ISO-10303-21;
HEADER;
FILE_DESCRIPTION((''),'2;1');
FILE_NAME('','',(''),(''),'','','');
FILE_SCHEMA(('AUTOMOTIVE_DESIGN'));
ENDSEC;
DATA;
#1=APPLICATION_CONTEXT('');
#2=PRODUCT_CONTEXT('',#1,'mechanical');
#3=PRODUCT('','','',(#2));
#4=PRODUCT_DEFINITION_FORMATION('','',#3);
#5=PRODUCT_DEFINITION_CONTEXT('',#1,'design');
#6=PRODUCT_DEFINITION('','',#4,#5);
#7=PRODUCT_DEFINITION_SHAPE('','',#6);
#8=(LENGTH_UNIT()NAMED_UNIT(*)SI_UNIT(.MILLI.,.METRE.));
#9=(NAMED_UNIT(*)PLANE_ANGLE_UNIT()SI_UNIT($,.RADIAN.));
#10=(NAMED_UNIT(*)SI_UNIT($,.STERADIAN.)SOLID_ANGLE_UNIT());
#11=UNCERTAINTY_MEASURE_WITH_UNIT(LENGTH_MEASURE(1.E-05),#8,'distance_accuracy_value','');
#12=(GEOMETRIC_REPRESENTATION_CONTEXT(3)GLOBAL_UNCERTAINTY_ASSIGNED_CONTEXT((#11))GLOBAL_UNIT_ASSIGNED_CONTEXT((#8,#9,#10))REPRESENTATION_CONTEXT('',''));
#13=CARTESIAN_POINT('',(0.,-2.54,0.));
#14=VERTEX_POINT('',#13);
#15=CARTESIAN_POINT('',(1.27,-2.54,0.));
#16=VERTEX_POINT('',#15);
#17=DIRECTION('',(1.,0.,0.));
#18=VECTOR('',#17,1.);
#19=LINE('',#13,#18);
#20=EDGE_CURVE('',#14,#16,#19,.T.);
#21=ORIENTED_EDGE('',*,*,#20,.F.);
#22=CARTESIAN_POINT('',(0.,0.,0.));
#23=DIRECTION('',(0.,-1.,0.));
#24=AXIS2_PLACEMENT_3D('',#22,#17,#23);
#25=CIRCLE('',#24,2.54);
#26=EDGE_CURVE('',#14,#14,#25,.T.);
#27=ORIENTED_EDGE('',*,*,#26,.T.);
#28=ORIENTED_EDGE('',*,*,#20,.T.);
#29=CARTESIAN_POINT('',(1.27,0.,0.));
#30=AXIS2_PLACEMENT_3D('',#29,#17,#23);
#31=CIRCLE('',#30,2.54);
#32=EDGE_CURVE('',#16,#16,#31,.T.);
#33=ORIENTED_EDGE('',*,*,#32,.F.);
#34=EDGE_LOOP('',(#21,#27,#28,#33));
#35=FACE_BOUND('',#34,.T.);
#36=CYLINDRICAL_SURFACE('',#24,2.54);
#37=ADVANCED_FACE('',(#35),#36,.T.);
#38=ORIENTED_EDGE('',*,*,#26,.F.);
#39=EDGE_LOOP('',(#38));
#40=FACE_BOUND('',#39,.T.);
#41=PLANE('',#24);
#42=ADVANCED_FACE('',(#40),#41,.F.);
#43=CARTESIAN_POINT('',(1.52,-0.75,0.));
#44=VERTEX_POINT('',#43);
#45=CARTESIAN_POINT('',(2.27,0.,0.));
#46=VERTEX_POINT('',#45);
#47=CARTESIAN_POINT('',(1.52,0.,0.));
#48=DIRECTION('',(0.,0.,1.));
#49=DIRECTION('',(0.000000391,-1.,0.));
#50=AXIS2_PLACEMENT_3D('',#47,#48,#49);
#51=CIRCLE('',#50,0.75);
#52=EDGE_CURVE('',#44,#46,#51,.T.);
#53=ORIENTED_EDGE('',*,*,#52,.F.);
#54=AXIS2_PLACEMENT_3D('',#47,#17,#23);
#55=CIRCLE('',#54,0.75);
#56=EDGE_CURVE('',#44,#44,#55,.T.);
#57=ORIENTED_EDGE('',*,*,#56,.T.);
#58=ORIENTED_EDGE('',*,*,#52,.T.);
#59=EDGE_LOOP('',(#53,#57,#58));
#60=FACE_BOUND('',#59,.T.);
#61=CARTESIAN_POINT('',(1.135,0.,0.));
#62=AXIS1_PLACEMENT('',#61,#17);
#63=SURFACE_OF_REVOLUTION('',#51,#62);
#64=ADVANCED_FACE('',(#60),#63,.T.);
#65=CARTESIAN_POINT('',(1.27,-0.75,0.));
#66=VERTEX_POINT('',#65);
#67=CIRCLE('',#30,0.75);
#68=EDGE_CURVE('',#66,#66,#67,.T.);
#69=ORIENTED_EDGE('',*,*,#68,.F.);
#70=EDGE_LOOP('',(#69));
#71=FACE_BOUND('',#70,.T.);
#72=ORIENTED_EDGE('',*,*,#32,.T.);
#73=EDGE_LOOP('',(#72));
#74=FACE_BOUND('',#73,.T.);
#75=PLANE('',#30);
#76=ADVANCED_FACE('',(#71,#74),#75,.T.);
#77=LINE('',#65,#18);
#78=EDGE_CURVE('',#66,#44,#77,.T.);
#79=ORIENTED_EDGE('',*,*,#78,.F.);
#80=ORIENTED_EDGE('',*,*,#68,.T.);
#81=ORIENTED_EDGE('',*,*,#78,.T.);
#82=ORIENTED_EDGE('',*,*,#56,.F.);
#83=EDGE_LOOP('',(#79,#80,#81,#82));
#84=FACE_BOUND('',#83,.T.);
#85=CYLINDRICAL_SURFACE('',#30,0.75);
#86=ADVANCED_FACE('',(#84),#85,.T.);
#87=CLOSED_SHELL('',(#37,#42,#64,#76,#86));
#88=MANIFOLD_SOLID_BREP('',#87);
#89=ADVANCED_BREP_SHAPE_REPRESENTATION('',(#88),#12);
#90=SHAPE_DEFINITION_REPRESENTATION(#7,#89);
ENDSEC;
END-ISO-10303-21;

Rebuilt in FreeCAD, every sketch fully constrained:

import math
import FreeCAD as App
import Part
import Sketcher
Q = App.Units.Quantity

doc = App.newDocument("Part")
params = doc.addObject("Spreadsheet::Sheet", "Params")
for row, (alias, value) in enumerate([
    ("sketch1_height", "0.1 in"),
    ("sketch1_width", "0.05 in"),
    ("revolution_angle", "360 deg"),
], start=1):
    params.set(f"A{row}", alias)
    params.set(f"B{row}", "=" + value)
    params.setAlias(f"B{row}", alias)

body = doc.addObject("PartDesign::Body", "Body")

# Sketch on XY plane
sketch1 = body.newObject("Sketcher::SketchObject", "Sketch")
sketch1.AttachmentSupport = (doc.getObject("XY_Plane"), [""])
sketch1.MapMode = "FlatFace"
sketch1.addGeometry(Part.LineSegment(App.Vector(0, 0, 0), App.Vector(0, -2.54, 0)), False)
sketch1.addGeometry(Part.LineSegment(App.Vector(0, -2.54, 0), App.Vector(1.27, -2.54, 0)), False)
sketch1.addGeometry(Part.LineSegment(App.Vector(1.27, -2.54, 0), App.Vector(1.27, -0.75, 0)), False)
sketch1.addGeometry(Part.LineSegment(App.Vector(1.27, -0.75, 0), App.Vector(1.52, -0.75, 0)), False)
sketch1.addGeometry(Part.ArcOfCircle(Part.Circle(App.Vector(1.52, 0, 0), App.Vector(0, 0, 1), 0.75), math.radians(-90), math.radians(0)), False)
sketch1.addGeometry(Part.LineSegment(App.Vector(2.27, 0, 0), App.Vector(0, 0, 0)), False)
sketch1.addConstraint(Sketcher.Constraint("Coincident", 0, 2, 1, 1))
sketch1.addConstraint(Sketcher.Constraint("Coincident", 1, 2, 2, 1))
sketch1.addConstraint(Sketcher.Constraint("Coincident", 2, 2, 3, 1))
sketch1.addConstraint(Sketcher.Constraint("Tangent", 3, 2, 4, 1))
sketch1.addConstraint(Sketcher.Constraint("Coincident", 4, 2, 5, 1))
sketch1.addConstraint(Sketcher.Constraint("Coincident", 5, 2, 0, 1))
sketch1.addConstraint(Sketcher.Constraint("Vertical", 0))
sketch1.addConstraint(Sketcher.Constraint("Horizontal", 1))
sketch1.addConstraint(Sketcher.Constraint("Vertical", 2))
sketch1.addConstraint(Sketcher.Constraint("Horizontal", 3))
sketch1.addConstraint(Sketcher.Constraint("Horizontal", 5))
sketch1.addConstraint(Sketcher.Constraint("Coincident", 5, 2, -1, 1))
sketch1.addConstraint(Sketcher.Constraint("PointOnObject", 4, 3, -1))
sketch1.addConstraint(Sketcher.Constraint("DistanceY", 0, 2, 0, 1, Q("0.1 in")))
sketch1.addConstraint(Sketcher.Constraint("DistanceX", 1, 1, 1, 2, Q("0.05 in")))
sketch1.addConstraint(Sketcher.Constraint("Radius", 4, Q("0.75 mm")))
sketch1.addConstraint(Sketcher.Constraint("DistanceX", 3, 1, 3, 2, Q("0.25 mm")))
sketch1.setExpression("Constraints[13]", "Params.sketch1_height")
sketch1.setExpression("Constraints[14]", "Params.sketch1_width")
revolution = body.newObject("PartDesign::Revolution", "Revolution")
revolution.Profile = sketch1
revolution.ReferenceAxis = (sketch1, ["H_Axis"])
revolution.setExpression("Angle", "Params.revolution_angle")

doc.recompute()
